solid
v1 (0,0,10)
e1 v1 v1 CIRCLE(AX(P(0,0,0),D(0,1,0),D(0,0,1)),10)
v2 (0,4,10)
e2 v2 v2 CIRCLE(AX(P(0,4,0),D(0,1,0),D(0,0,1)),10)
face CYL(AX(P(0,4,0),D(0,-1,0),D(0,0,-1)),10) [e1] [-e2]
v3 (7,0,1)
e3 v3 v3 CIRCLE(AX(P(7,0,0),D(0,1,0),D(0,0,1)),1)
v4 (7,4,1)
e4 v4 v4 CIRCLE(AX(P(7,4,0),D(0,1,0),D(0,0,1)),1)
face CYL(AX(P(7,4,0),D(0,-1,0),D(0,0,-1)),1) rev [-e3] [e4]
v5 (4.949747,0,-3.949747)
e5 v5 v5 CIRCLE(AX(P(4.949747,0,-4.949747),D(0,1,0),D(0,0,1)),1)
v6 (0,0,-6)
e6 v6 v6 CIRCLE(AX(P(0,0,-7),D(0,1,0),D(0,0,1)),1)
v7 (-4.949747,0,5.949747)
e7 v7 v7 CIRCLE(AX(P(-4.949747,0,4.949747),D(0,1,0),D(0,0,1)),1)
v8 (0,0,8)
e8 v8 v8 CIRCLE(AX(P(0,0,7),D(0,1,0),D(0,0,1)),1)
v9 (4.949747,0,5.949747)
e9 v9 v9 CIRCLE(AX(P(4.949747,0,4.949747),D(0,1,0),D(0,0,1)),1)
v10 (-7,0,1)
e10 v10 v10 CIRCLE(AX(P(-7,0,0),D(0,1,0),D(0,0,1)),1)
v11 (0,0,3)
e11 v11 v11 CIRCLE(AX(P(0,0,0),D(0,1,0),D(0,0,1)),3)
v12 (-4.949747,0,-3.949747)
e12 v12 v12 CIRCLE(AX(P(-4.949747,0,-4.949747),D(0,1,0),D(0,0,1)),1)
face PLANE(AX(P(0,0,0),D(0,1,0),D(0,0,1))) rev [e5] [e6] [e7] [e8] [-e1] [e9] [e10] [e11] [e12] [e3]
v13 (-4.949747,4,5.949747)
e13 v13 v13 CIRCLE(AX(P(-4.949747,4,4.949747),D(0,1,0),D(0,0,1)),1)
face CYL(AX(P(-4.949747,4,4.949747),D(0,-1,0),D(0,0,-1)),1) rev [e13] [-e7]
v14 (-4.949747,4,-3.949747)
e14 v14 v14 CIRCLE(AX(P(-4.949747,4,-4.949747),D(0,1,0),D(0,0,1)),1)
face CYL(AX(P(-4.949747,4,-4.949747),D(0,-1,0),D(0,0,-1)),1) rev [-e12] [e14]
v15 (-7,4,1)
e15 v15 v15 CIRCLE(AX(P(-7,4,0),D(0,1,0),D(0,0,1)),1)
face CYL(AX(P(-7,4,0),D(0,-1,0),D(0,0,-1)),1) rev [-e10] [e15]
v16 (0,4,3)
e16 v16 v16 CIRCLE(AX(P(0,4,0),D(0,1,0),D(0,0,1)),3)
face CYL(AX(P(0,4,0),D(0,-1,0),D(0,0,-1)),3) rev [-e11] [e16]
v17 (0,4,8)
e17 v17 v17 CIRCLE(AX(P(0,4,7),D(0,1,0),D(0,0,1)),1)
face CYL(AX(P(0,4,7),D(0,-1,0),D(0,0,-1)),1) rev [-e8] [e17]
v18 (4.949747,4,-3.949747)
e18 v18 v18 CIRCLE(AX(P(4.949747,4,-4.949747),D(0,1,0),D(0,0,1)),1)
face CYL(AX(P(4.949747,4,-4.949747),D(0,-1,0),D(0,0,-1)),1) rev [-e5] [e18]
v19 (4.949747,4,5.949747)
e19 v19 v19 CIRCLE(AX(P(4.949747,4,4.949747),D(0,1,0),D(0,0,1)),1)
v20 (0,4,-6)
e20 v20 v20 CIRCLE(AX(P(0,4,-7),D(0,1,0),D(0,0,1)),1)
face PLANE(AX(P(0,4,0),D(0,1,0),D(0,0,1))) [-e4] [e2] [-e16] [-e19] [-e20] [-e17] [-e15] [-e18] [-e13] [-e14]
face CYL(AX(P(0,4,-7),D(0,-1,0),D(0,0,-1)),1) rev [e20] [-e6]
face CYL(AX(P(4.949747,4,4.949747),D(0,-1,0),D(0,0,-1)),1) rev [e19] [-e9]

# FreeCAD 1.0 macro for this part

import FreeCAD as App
import Part
import Sketcher

doc = App.newDocument("Part")
body = doc.addObject("PartDesign::Body", "Body")

# Sketch on XZ plane
sketch1 = body.newObject("Sketcher::SketchObject", "Sketch")
sketch1.AttachmentSupport = (doc.getObject("XZ_Plane"), [""])
sketch1.MapMode = "FlatFace"
sketch1.addGeometry(Part.Circle(App.Vector(0, 0, 0), App.Vector(0, 0, 1), 10), False)
sketch1.addGeometry(Part.Circle(App.Vector(-4.949747, -4.949747, 0), App.Vector(0, 0, 1), 1), False)
sketch1.addGeometry(Part.Circle(App.Vector(0, -7, 0), App.Vector(0, 0, 1), 1), False)
sketch1.addGeometry(Part.Circle(App.Vector(-7, 0, 0), App.Vector(0, 0, 1), 1), False)
sketch1.addGeometry(Part.Circle(App.Vector(-4.949747, 4.949747, 0), App.Vector(0, 0, 1), 1), False)
sketch1.addGeometry(Part.Circle(App.Vector(0, 0, 0), App.Vector(0, 0, 1), 3), False)
sketch1.addGeometry(Part.Circle(App.Vector(4.949747, -4.949747, 0), App.Vector(0, 0, 1), 1), False)
sketch1.addGeometry(Part.Circle(App.Vector(7, 0, 0), App.Vector(0, 0, 1), 1), False)
sketch1.addGeometry(Part.Circle(App.Vector(0, 7, 0), App.Vector(0, 0, 1), 1), False)
sketch1.addGeometry(Part.Circle(App.Vector(4.949747, 4.949747, 0), App.Vector(0, 0, 1), 1), False)
sketch1.addConstraint(Sketcher.Constraint("Coincident", 0, 3, -1, 1))
sketch1.addConstraint(Sketcher.Constraint("Coincident", 5, 3, -1, 1))
sketch1.addConstraint(Sketcher.Constraint("Equal", 1, 2))
sketch1.addConstraint(Sketcher.Constraint("Equal", 2, 3))
sketch1.addConstraint(Sketcher.Constraint("Equal", 3, 4))
sketch1.addConstraint(Sketcher.Constraint("Equal", 4, 6))
sketch1.addConstraint(Sketcher.Constraint("Equal", 6, 7))
sketch1.addConstraint(Sketcher.Constraint("Equal", 7, 8))
sketch1.addConstraint(Sketcher.Constraint("Equal", 8, 9))
sketch1.addConstraint(Sketcher.Constraint("Symmetric", 4, 3, 6, 3, -1, 1))
sketch1.addConstraint(Sketcher.Constraint("Symmetric", 3, 3, 7, 3, -1, 1))
sketch1.addConstraint(Sketcher.Constraint("Symmetric", 2, 3, 8, 3, -1, 1))
sketch1.addConstraint(Sketcher.Constraint("Symmetric", 1, 3, 9, 3, -1, 1))
sketch1.addConstraint(Sketcher.Constraint("Symmetric", 1, 3, 6, 3, -2))
sketch1.addConstraint(Sketcher.Constraint("PointOnObject", 2, 3, -2))
sketch1.addConstraint(Sketcher.Constraint("PointOnObject", 3, 3, -1))
sketch1.addConstraint(Sketcher.Constraint("Diameter", 0, 20.0))
sketch1.addConstraint(Sketcher.Constraint("Diameter", 1, 2.0))
sketch1.addConstraint(Sketcher.Constraint("Diameter", 5, 6.0))
sketch1.addConstraint(Sketcher.Constraint("DistanceY", 2, 3, -1, 1, 7.0))
sketch1.addConstraint(Sketcher.Constraint("DistanceX", 3, 3, -1, 1, 7.0))
sketch1.addConstraint(Sketcher.Constraint("DistanceX", 1, 3, -1, 1, 4.949747))
sketch1.addConstraint(Sketcher.Constraint("DistanceY", 1, 3, -1, 1, 4.949747))
pad1 = body.newObject("PartDesign::Pad", "Pad")
pad1.Profile = sketch1
pad1.Length = 4
pad1.Reversed = True

doc.recompute()
